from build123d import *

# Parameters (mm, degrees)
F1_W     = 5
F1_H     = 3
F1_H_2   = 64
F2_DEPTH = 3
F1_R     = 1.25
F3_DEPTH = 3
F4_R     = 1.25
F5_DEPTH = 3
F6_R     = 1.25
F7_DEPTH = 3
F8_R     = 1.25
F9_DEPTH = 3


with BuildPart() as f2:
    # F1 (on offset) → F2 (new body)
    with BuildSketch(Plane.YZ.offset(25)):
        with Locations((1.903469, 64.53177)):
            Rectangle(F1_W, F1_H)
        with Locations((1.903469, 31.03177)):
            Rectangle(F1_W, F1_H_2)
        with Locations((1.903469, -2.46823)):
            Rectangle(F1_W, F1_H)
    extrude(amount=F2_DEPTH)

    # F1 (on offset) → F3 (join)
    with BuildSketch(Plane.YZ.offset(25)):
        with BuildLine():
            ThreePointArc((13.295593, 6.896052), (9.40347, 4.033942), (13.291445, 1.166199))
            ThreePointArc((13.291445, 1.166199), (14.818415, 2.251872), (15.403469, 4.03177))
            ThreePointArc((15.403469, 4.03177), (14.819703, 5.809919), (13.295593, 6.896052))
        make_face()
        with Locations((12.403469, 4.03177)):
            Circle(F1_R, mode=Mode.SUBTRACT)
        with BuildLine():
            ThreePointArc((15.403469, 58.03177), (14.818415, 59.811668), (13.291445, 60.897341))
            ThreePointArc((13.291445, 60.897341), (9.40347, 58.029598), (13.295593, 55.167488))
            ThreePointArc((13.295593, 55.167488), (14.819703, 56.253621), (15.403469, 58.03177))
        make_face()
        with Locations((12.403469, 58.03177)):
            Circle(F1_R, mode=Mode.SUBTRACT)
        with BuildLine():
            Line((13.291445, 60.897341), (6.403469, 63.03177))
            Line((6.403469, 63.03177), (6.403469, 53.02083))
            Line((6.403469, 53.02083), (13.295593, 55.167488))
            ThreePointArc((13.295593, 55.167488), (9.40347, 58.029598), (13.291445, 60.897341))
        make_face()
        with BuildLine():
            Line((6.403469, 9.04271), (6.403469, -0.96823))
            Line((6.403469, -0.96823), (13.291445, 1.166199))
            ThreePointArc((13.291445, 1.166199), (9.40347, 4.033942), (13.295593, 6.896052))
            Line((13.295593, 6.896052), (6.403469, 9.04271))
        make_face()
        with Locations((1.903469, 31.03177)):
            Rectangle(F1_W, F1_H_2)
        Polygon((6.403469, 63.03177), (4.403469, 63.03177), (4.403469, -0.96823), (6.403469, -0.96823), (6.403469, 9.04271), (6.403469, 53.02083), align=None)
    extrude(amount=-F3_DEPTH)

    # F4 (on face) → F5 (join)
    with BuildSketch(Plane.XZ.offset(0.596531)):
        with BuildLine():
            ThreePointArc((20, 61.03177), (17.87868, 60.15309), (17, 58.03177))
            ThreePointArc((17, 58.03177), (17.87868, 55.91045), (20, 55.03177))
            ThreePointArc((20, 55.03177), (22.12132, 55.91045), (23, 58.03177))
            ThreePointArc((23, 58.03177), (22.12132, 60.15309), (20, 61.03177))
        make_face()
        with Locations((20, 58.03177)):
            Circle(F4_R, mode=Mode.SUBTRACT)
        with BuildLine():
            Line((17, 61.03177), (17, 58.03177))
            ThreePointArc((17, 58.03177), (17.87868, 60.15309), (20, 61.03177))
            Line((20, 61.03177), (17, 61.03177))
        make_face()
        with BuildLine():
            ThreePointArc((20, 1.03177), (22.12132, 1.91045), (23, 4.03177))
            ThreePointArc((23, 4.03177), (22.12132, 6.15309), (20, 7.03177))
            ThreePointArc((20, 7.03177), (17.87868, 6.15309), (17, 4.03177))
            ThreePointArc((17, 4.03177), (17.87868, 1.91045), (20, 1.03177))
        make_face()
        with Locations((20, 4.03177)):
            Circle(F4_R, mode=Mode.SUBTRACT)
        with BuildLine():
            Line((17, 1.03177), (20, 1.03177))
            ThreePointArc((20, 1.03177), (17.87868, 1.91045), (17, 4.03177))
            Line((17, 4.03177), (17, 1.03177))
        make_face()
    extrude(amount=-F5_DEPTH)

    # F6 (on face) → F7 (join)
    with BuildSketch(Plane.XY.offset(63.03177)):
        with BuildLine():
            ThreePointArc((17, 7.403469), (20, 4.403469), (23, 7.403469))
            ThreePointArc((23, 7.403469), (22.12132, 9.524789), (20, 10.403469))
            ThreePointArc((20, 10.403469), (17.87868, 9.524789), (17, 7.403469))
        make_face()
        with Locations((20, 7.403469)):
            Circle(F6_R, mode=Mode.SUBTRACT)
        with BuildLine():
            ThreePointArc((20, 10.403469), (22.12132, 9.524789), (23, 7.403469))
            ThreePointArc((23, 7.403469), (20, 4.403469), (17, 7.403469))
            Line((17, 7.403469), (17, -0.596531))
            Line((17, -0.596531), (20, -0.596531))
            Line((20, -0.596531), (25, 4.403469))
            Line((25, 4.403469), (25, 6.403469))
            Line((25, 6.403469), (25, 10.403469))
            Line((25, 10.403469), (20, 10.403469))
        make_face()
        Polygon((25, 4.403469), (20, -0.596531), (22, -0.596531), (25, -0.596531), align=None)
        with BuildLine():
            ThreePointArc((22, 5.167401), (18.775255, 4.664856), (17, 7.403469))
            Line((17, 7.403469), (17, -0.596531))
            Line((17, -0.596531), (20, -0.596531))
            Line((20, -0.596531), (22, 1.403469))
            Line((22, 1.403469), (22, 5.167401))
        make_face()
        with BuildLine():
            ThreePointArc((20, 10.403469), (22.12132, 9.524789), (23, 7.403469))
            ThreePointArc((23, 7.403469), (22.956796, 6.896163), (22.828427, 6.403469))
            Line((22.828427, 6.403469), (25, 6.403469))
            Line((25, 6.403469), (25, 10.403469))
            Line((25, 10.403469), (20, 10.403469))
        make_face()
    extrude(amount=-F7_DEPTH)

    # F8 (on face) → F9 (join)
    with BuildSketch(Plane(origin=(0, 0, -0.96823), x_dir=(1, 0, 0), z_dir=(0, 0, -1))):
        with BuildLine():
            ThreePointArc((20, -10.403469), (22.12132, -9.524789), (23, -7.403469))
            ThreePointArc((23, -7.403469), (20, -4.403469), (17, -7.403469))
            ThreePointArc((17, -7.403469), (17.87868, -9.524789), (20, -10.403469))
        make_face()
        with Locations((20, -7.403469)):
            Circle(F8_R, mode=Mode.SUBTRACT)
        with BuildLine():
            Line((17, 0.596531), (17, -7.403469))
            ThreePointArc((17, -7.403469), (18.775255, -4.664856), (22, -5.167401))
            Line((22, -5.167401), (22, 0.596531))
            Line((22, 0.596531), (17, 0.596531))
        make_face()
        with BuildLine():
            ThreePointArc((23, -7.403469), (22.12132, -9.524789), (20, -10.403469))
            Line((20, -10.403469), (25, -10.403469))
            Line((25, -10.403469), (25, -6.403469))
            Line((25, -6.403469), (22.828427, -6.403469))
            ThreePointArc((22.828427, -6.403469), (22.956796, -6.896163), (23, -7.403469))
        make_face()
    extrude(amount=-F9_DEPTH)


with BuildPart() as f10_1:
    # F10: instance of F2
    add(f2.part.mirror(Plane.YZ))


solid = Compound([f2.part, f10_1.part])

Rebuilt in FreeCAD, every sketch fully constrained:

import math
import FreeCAD as App
import Part
import Sketcher
from FreeCAD import Vector
Q = App.Units.Quantity

doc = App.newDocument("Part")
params = doc.addObject("Spreadsheet::Sheet", "Params")
for row, (alias, value) in enumerate([
    ("sketch1_width", "5 mm"),
    ("sketch1_height", "70 mm"),
    ("pad1_length", "3 mm"),
    ("sketch2_radius", "2.999998 mm"),
    ("sketch2_diameter", "2.5 mm"),
    ("sketch2_width", "7 mm"),
    ("sketch2_height", "64 mm"),
    ("pad2_length", "3 mm"),
    ("sketch3_radius", "3.000001 mm"),
    ("sketch3_diameter", "2.5 mm"),
    ("pad3_length", "3 mm"),
    ("sketch4_radius", "3.000001 mm"),
    ("sketch4_diameter", "2.5 mm"),
    ("sketch4_width", "5 mm"),
    ("pad4_length", "3 mm"),
    ("sketch5_radius", "3 mm"),
    ("sketch5_diameter", "2.5 mm"),
    ("sketch5_width", "5 mm"),
    ("sketch5_height", "8 mm"),
    ("sketch5_height2", "4 mm"),
    ("pad5_length", "3 mm"),
], start=1):
    params.set(f"A{row}", alias)
    params.set(f"B{row}", "=" + value)
    params.setAlias(f"B{row}", alias)

body = doc.addObject("PartDesign::Body", "Body")

sketch1 = body.newObject("Sketcher::SketchObject", "Sketch")
sketch1.AttachmentSupport = (doc.getObject("YZ_Plane"), [""])
sketch1.MapMode = "FlatFace"
sketch1.AttachmentOffset = App.Placement(Vector(0, 0, 25), App.Rotation())
sketch1.addGeometry([
    Part.LineSegment(Vector(-1, 66, 0), Vector(-1, -4, 0)),
    Part.LineSegment(Vector(-1, -4, 0), Vector(4, -4, 0)),
    Part.LineSegment(Vector(4, -4, 0), Vector(4, 66, 0)),
    Part.LineSegment(Vector(4, 66, 0), Vector(-1, 66, 0)),
], False)
sketch1.addConstraint([
    Sketcher.Constraint("Coincident", 0, 2, 1, 1),
    Sketcher.Constraint("Coincident", 1, 2, 2, 1),
    Sketcher.Constraint("Coincident", 2, 2, 3, 1),
    Sketcher.Constraint("Coincident", 3, 2, 0, 1),
    Sketcher.Constraint("Vertical", 0),
    Sketcher.Constraint("Horizontal", 1),
    Sketcher.Constraint("Vertical", 2),
    Sketcher.Constraint("Horizontal", 3),
    Sketcher.Constraint("DistanceX", 1, 1, 1, 2, Q("5 mm")),
    Sketcher.Constraint("DistanceY", 0, 2, 0, 1, Q("70 mm")),
    Sketcher.Constraint("DistanceX", 0, 2, -1, 1, Q("0.596531 mm")),
    Sketcher.Constraint("DistanceY", 0, 2, -1, 1, Q("3.96823 mm")),
])
sketch1.setExpression("Constraints[8]", "Params.sketch1_width")
sketch1.setExpression("Constraints[9]", "Params.sketch1_height")
pad1 = body.newObject("PartDesign::Pad", "Pad")
pad1.Profile = sketch1
pad1.setExpression("Length", "Params.pad1_length")

sketch2 = body.newObject("Sketcher::SketchObject", "Sketch001")
sketch2.AttachmentSupport = (doc.getObject("YZ_Plane"), [""])
sketch2.MapMode = "FlatFace"
sketch2.AttachmentOffset = App.Placement(Vector(0, 0, 25), App.Rotation())
sketch2.addGeometry([
    Part.ArcOfCircle(Part.Circle(Vector(12.4, 4, 0), Vector(0, 0, 1), 3), math.radians(0), math.radians(73)),
    Part.LineSegment(Vector(13.3, 6.9, 0), Vector(6.4, 9, 0)),
    Part.LineSegment(Vector(6.4, 9, 0), Vector(6.4, 53, 0)),
    Part.LineSegment(Vector(6.4, 53, 0), Vector(13.3, 55.2, 0)),
    Part.ArcOfCircle(Part.Circle(Vector(12.4, 58, 0), Vector(0, 0, 1), 3), math.radians(-73), math.radians(0)),
    Part.ArcOfCircle(Part.Circle(Vector(12.4, 58, 0), Vector(0, 0, 1), 3), math.radians(0), math.radians(73)),
    Part.LineSegment(Vector(13.3, 60.9, 0), Vector(6.4, 63, 0)),
    Part.LineSegment(Vector(6.4, 63, 0), Vector(-0.6, 63, 0)),
    Part.LineSegment(Vector(-0.6, 63, 0), Vector(-0.6, -1, 0)),
    Part.LineSegment(Vector(-0.6, -1, 0), Vector(6.4, -1, 0)),
    Part.LineSegment(Vector(6.4, -1, 0), Vector(13.3, 1.2, 0)),
    Part.ArcOfCircle(Part.Circle(Vector(12.4, 4, 0), Vector(0, 0, 1), 3), math.radians(-73), math.radians(0)),
    Part.Circle(Vector(12.4, 4, 0), Vector(0, 0, 1), 1.2),
    Part.Circle(Vector(12.4, 58, 0), Vector(0, 0, 1), 1.2),
], False)
sketch2.addConstraint([
    Sketcher.Constraint("Tangent", 0, 2, 1, 1),
    Sketcher.Constraint("Coincident", 1, 2, 2, 1),
    Sketcher.Constraint("Coincident", 2, 2, 3, 1),
    Sketcher.Constraint("Tangent", 3, 2, 4, 1),
    Sketcher.Constraint("Tangent", 4, 2, 5, 1),
    Sketcher.Constraint("Tangent", 5, 2, 6, 1),
    Sketcher.Constraint("Coincident", 6, 2, 7, 1),
    Sketcher.Constraint("Coincident", 7, 2, 8, 1),
    Sketcher.Constraint("Coincident", 8, 2, 9, 1),
    Sketcher.Constraint("Coincident", 9, 2, 10, 1),
    Sketcher.Constraint("Tangent", 10, 2, 11, 1),
    Sketcher.Constraint("Tangent", 11, 2, 0, 1),
    Sketcher.Constraint("Vertical", 2),
    Sketcher.Constraint("Horizontal", 7),
    Sketcher.Constraint("Vertical", 8),
    Sketcher.Constraint("Horizontal", 9),
    Sketcher.Constraint("Coincident", 12, 3, 0, 3),
    Sketcher.Constraint("Coincident", 13, 3, 4, 3),
    Sketcher.Constraint("Equal", 0, 4),
    Sketcher.Constraint("Equal", 4, 5),
    Sketcher.Constraint("Equal", 5, 11),
    Sketcher.Constraint("Equal", 12, 13),
    Sketcher.Constraint("Horizontal", 13, 3, 4, 2),
    Sketcher.Constraint("Horizontal", 12, 3, 11, 2),
    Sketcher.Constraint("Vertical", 0, 3, 4, 3),
    Sketcher.Constraint("Vertical", 0, 2, 3, 2),
    Sketcher.Constraint("Vertical", 2, 2, 6, 2),
    Sketcher.Constraint("Vertical", 6, 2, 9, 2),
    Sketcher.Constraint("Vertical", 5, 2, 10, 2),
    Sketcher.Constraint("Radius", 0, Q("2.999998 mm")),
    Sketcher.Constraint("Diameter", 12, Q("2.5 mm")),
    Sketcher.Constraint("DistanceX", 7, 2, 7, 1, Q("7 mm")),
    Sketcher.Constraint("DistanceY", 8, 2, 8, 1, Q("64 mm")),
    Sketcher.Constraint("Angle", 1, Q("162.699997 deg")),
    Sketcher.Constraint("DistanceY", 0, 3, 4, 3, Q("53.999998 mm")),
    Sketcher.Constraint("DistanceX", 1, 2, 12, 3, Q("6 mm")),
    Sketcher.Constraint("DistanceY", -1, 1, 10, 2, Q("1.166199 mm")),
    Sketcher.Constraint("DistanceX", -1, 1, 0, 3, Q("12.403471 mm")),
])
sketch2.setExpression("Constraints[29]", "Params.sketch2_radius")
sketch2.setExpression("Constraints[30]", "Params.sketch2_diameter")
sketch2.setExpression("Constraints[31]", "Params.sketch2_width")
sketch2.setExpression("Constraints[32]", "Params.sketch2_height")
pad2 = body.newObject("PartDesign::Pad", "Pad001")
pad2.Profile = sketch2
pad2.setExpression("Length", "Params.pad2_length")
pad2.Reversed = True

sketch3 = body.newObject("Sketcher::SketchObject", "Sketch002")
sketch3.AttachmentSupport = (doc.getObject("XZ_Plane"), [""])
sketch3.MapMode = "FlatFace"
sketch3.AttachmentOffset = App.Placement(Vector(0, 0, 0.596531), App.Rotation())
sketch3.addGeometry([
    Part.ArcOfCircle(Part.Circle(Vector(20, 58, 0), Vector(0, 0, 1), 3), math.radians(0), math.radians(90)),
    Part.LineSegment(Vector(20, 61, 0), Vector(17, 61, 0)),
    Part.LineSegment(Vector(17, 61, 0), Vector(17, 58, 0)),
    Part.ArcOfCircle(Part.Circle(Vector(20, 58, 0), Vector(0, 0, 1), 3), math.radians(-180), math.radians(-90)),
    Part.ArcOfCircle(Part.Circle(Vector(20, 58, 0), Vector(0, 0, 1), 3), math.radians(-90), math.radians(0)),
    Part.Circle(Vector(20, 58, 0), Vector(0, 0, 1), 1.2),
    Part.ArcOfCircle(Part.Circle(Vector(20, 4, 0), Vector(0, 0, 1), 3), math.radians(-90), math.radians(0)),
    Part.ArcOfCircle(Part.Circle(Vector(20, 4, 0), Vector(0, 0, 1), 3), math.radians(0), math.radians(90)),
    Part.ArcOfCircle(Part.Circle(Vector(20, 4, 0), Vector(0, 0, 1), 3), math.radians(90), math.radians(180)),
    Part.LineSegment(Vector(17, 4, 0), Vector(17, 1, 0)),
    Part.LineSegment(Vector(17, 1, 0), Vector(20, 1, 0)),
    Part.Circle(Vector(20, 4, 0), Vector(0, 0, 1), 1.2),
], False)
sketch3.addConstraint([
    Sketcher.Constraint("Tangent", 0, 2, 1, 1),
    Sketcher.Constraint("Coincident", 1, 2, 2, 1),
    Sketcher.Constraint("Tangent", 2, 2, 3, 1),
    Sketcher.Constraint("Tangent", 3, 2, 4, 1),
    Sketcher.Constraint("Tangent", 4, 2, 0, 1),
    Sketcher.Constraint("Tangent", 6, 2, 7, 1),
    Sketcher.Constraint("Tangent", 7, 2, 8, 1),
    Sketcher.Constraint("Tangent", 8, 2, 9, 1),
    Sketcher.Constraint("Coincident", 9, 2, 10, 1),
    Sketcher.Constraint("Tangent", 10, 2, 6, 1),
    Sketcher.Constraint("Horizontal", 1),
    Sketcher.Constraint("Vertical", 2),
    Sketcher.Constraint("Vertical", 9),
    Sketcher.Constraint("Horizontal", 10),
    Sketcher.Constraint("Coincident", 3, 3, 0, 3),
    Sketcher.Constraint("Coincident", 5, 3, 0, 3),
    Sketcher.Constraint("Coincident", 8, 3, 6, 3),
    Sketcher.Constraint("Coincident", 11, 3, 6, 3),
    Sketcher.Constraint("Equal", 4, 6),
    Sketcher.Constraint("Equal", 5, 11),
    Sketcher.Constraint("Horizontal", 2, 2, 4, 2),
    Sketcher.Constraint("Horizontal", 11, 3, 6, 2),
    Sketcher.Constraint("Vertical", 5, 3, 6, 3),
    Sketcher.Constraint("Vertical", 0, 2, 3, 2),
    Sketcher.Constraint("Vertical", 3, 2, 7, 2),
    Sketcher.Constraint("Radius", 0, Q("3.000001 mm")),
    Sketcher.Constraint("Diameter", 5, Q("2.5 mm")),
    Sketcher.Constraint("DistanceX", -1, 1, 0, 3, Q("19.999999 mm")),
    Sketcher.Constraint("DistanceY", 6, 3, 5, 3, Q("53.999999 mm")),
    Sketcher.Constraint("DistanceY", -1, 1, 0, 3, Q("58.031769 mm")),
])
sketch3.setExpression("Constraints[25]", "Params.sketch3_radius")
sketch3.setExpression("Constraints[26]", "Params.sketch3_diameter")
pad3 = body.newObject("PartDesign::Pad", "Pad002")
pad3.Profile = sketch3
pad3.setExpression("Length", "Params.pad3_length")
pad3.Reversed = True

sketch4 = body.newObject("Sketcher::SketchObject", "Sketch003")
sketch4.AttachmentSupport = (doc.getObject("XY_Plane"), [""])
sketch4.MapMode = "FlatFace"
sketch4.AttachmentOffset = App.Placement(Vector(0, 0, 63.03177), App.Rotation())
sketch4.addGeometry([
    Part.LineSegment(Vector(25, 10.4, 0), Vector(20, 10.4, 0)),
    Part.ArcOfCircle(Part.Circle(Vector(20, 7.4, 0), Vector(0, 0, 1), 3), math.radians(90), math.radians(180)),
    Part.LineSegment(Vector(17, 7.4, 0), Vector(17, -0.6, 0)),
    Part.LineSegment(Vector(17, -0.6, 0), Vector(25, -0.6, 0)),
    Part.LineSegment(Vector(25, -0.6, 0), Vector(25, 10.4, 0)),
    Part.Circle(Vector(20, 7.4, 0), Vector(0, 0, 1), 1.2),
], False)
sketch4.addConstraint([
    Sketcher.Constraint("Tangent", 0, 2, 1, 1),
    Sketcher.Constraint("Tangent", 1, 2, 2, 1),
    Sketcher.Constraint("Coincident", 2, 2, 3, 1),
    Sketcher.Constraint("Coincident", 3, 2, 4, 1),
    Sketcher.Constraint("Coincident", 4, 2, 0, 1),
    Sketcher.Constraint("Horizontal", 0),
    Sketcher.Constraint("Vertical", 2),
    Sketcher.Constraint("Horizontal", 3),
    Sketcher.Constraint("Vertical", 4),
    Sketcher.Constraint("Coincident", 5, 3, 1, 3),
    Sketcher.Constraint("Equal", 3, 2),
    Sketcher.Constraint("Radius", 1, Q("3.000001 mm")),
    Sketcher.Constraint("Diameter", 5, Q("2.5 mm")),
    Sketcher.Constraint("DistanceX", 0, 2, 0, 1, Q("5 mm")),
    Sketcher.Constraint("DistanceX", -1, 1, 1, 3, Q("20.000001 mm")),
    Sketcher.Constraint("DistanceY", -1, 1, 5, 3, Q("7.403469 mm")),
])
sketch4.setExpression("Constraints[11]", "Params.sketch4_radius")
sketch4.setExpression("Constraints[12]", "Params.sketch4_diameter")
sketch4.setExpression("Constraints[13]", "Params.sketch4_width")
pad4 = body.newObject("PartDesign::Pad", "Pad003")
pad4.Profile = sketch4
pad4.setExpression("Length", "Params.pad4_length")
pad4.Reversed = True

sketch5 = body.newObject("Sketcher::SketchObject", "Sketch004")
sketch5.AttachmentSupport = (doc.getObject("XY_Plane"), [""])
sketch5.MapMode = "FlatFace"
sketch5.AttachmentOffset = App.Placement(Vector(0, 0, -0.96823), App.Rotation())
sketch5.addGeometry([
    Part.ArcOfCircle(Part.Circle(Vector(20, 7.4, 0), Vector(0, 0, 1), 3), math.radians(-48), math.radians(-19)),
    Part.LineSegment(Vector(22, 5.2, 0), Vector(22, -0.6, 0)),
    Part.LineSegment(Vector(22, -0.6, 0), Vector(17, -0.6, 0)),
    Part.LineSegment(Vector(17, -0.6, 0), Vector(17, 7.4, 0)),
    Part.ArcOfCircle(Part.Circle(Vector(20, 7.4, 0), Vector(0, 0, 1), 3), math.radians(90), math.radians(180)),
    Part.LineSegment(Vector(20, 10.4, 0), Vector(25, 10.4, 0)),
    Part.LineSegment(Vector(25, 10.4, 0), Vector(25, 6.4, 0)),
    Part.LineSegment(Vector(25, 6.4, 0), Vector(22.8, 6.4, 0)),
    Part.Circle(Vector(20, 7.4, 0), Vector(0, 0, 1), 1.2),
], False)
sketch5.addConstraint([
    Sketcher.Constraint("Coincident", 0, 1, 1, 1),
    Sketcher.Constraint("Coincident", 1, 2, 2, 1),
    Sketcher.Constraint("Coincident", 2, 2, 3, 1),
    Sketcher.Constraint("Tangent", 3, 2, 4, 2),
    Sketcher.Constraint("Tangent", 4, 1, 5, 1),
    Sketcher.Constraint("Coincident", 5, 2, 6, 1),
    Sketcher.Constraint("Coincident", 6, 2, 7, 1),
    Sketcher.Constraint("Coincident", 7, 2, 0, 2),
    Sketcher.Constraint("Vertical", 1),
    Sketcher.Constraint("Horizontal", 2),
    Sketcher.Constraint("Vertical", 3),
    Sketcher.Constraint("Horizontal", 5),
    Sketcher.Constraint("Vertical", 6),
    Sketcher.Constraint("Horizontal", 7),
    Sketcher.Constraint("Coincident", 4, 3, 0, 3),
    Sketcher.Constraint("Coincident", 8, 3, 0, 3),
    Sketcher.Constraint("Equal", 0, 4),
    Sketcher.Constraint("Equal", 2, 5),
    Sketcher.Constraint("Radius", 0, Q("3 mm")),
    Sketcher.Constraint("Diameter", 8, Q("2.5 mm")),
    Sketcher.Constraint("DistanceX", 2, 2, 2, 1, Q("5 mm")),
    Sketcher.Constraint("DistanceY", 3, 1, 3, 2, Q("8 mm")),
    Sketcher.Constraint("DistanceY", 6, 2, 6, 1, Q("4 mm")),
    Sketcher.Constraint("DistanceX", -1, 1, 0, 3, Q("20 mm")),
    Sketcher.Constraint("DistanceY", -1, 1, 0, 1, Q("5.167401 mm")),
])
sketch5.setExpression("Constraints[18]", "Params.sketch5_radius")
sketch5.setExpression("Constraints[19]", "Params.sketch5_diameter")
sketch5.setExpression("Constraints[20]", "Params.sketch5_width")
sketch5.setExpression("Constraints[21]", "Params.sketch5_height")
sketch5.setExpression("Constraints[22]", "Params.sketch5_height2")
pad5 = body.newObject("PartDesign::Pad", "Pad004")
pad5.Profile = sketch5
pad5.setExpression("Length", "Params.pad5_length")
body2 = doc.addObject("PartDesign::Body", "Body001")
doc.recompute()

mirroring = doc.addObject("Part::Mirroring", "Mirroring")
mirroring.Source = body
mirroring.Base = Vector(0, 0, 0)
mirroring.Normal = Vector(1, 0, 0)
body2.BaseFeature = mirroring
doc.recompute()
mirroring.Visibility = False

doc.recompute()
